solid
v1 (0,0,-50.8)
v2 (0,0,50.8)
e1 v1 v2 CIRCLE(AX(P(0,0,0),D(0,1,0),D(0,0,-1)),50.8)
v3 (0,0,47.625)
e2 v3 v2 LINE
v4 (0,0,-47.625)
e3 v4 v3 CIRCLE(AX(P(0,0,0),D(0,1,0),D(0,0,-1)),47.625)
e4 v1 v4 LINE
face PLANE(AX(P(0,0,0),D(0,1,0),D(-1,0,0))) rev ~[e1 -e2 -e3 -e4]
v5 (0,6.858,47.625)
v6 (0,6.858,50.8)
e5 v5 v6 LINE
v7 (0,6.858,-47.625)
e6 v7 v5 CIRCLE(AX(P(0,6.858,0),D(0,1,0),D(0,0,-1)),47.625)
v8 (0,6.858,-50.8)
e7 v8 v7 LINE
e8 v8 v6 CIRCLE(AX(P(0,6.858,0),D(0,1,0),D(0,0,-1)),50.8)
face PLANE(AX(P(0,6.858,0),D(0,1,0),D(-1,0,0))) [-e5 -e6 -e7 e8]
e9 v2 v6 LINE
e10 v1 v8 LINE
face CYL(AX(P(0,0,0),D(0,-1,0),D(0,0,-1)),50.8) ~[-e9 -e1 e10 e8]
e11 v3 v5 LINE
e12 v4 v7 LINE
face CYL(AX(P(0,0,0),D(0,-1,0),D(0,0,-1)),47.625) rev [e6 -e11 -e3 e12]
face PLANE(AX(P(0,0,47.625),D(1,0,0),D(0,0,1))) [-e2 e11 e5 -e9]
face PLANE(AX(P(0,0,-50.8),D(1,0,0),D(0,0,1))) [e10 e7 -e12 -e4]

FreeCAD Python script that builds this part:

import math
import FreeCAD as App
import Part
import Sketcher
Q = App.Units.Quantity

doc = App.newDocument("Part")
body = doc.addObject("PartDesign::Body", "Body")

# Sketch on XZ plane
sketch1 = body.newObject("Sketcher::SketchObject", "Sketch")
sketch1.AttachmentSupport = (doc.getObject("XZ_Plane"), [""])
sketch1.MapMode = "FlatFace"
sketch1.addGeometry(Part.LineSegment(App.Vector(0, -47.6, 0), App.Vector(0, -50.8, 0)), False)
sketch1.addGeometry(Part.ArcOfCircle(Part.Circle(App.Vector(0, 0, 0), App.Vector(0, 0, 1), 50.8), math.radians(90), math.radians(270)), False)
sketch1.addGeometry(Part.LineSegment(App.Vector(0, 50.8, 0), App.Vector(0, 47.6, 0)), False)
sketch1.addGeometry(Part.ArcOfCircle(Part.Circle(App.Vector(0, 0, 0), App.Vector(0, 0, 1), 47.6), math.radians(90), math.radians(270)), False)
sketch1.addConstraint(Sketcher.Constraint("Coincident", 0, 2, 1, 2))
sketch1.addConstraint(Sketcher.Constraint("Coincident", 1, 1, 2, 1))
sketch1.addConstraint(Sketcher.Constraint("Coincident", 2, 2, 3, 1))
sketch1.addConstraint(Sketcher.Constraint("Coincident", 3, 2, 0, 1))
sketch1.addConstraint(Sketcher.Constraint("Vertical", 0))
sketch1.addConstraint(Sketcher.Constraint("Vertical", 2))
sketch1.addConstraint(Sketcher.Constraint("Coincident", 1, 3, -1, 1))
sketch1.addConstraint(Sketcher.Constraint("Coincident", 3, 3, -1, 1))
sketch1.addConstraint(Sketcher.Constraint("PointOnObject", 0, 2, -2))
sketch1.addConstraint(Sketcher.Constraint("PointOnObject", 1, 1, -2))
sketch1.addConstraint(Sketcher.Constraint("Radius", 1, Q("2 in")))
sketch1.addConstraint(Sketcher.Constraint("Radius", 3, Q("1.875 in")))
pad1 = body.newObject("PartDesign::Pad", "Pad")
pad1.Profile = sketch1
pad1.Length = Q("0.27 in")
pad1.Reversed = True

doc.recompute()
